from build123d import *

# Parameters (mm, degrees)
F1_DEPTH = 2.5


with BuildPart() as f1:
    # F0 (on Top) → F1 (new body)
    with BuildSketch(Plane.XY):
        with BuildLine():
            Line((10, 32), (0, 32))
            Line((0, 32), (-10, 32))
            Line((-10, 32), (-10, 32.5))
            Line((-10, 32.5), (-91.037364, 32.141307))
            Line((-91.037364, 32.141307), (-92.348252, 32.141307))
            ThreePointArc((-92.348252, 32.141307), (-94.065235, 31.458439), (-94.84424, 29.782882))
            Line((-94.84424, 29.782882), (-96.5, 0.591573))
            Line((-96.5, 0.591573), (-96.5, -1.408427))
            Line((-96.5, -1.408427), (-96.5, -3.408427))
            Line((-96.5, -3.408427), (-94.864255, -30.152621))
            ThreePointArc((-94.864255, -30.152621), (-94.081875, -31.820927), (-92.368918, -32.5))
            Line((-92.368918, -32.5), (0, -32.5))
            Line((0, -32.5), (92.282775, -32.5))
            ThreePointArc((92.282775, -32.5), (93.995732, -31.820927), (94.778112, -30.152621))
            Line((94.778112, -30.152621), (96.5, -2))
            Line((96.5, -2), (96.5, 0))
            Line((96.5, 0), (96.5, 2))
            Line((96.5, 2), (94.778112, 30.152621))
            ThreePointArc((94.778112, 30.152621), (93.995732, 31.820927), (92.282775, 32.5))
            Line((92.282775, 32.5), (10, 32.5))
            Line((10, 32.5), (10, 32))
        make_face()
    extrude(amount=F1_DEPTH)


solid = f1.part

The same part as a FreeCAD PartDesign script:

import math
import FreeCAD as App
import Part
import Sketcher
Q = App.Units.Quantity

doc = App.newDocument("Part")
body = doc.addObject("PartDesign::Body", "Body")

sketch1 = body.newObject("Sketcher::SketchObject", "Sketch")
sketch1.AttachmentSupport = (doc.getObject("XY_Plane"), [""])
sketch1.MapMode = "FlatFace"
sketch1.addGeometry(Part.LineSegment(App.Vector(10, 32, 0), App.Vector(-10, 32, 0)), False)
sketch1.addGeometry(Part.LineSegment(App.Vector(-10, 32, 0), App.Vector(-10, 32.5, 0)), False)
sketch1.addGeometry(Part.LineSegment(App.Vector(-10, 32.5, 0), App.Vector(-91.037364, 32.141307, 0)), False)
sketch1.addGeometry(Part.LineSegment(App.Vector(-91.037364, 32.141307, 0), App.Vector(-92.348252, 32.141307, 0)), False)
sketch1.addGeometry(Part.ArcOfCircle(Part.Circle(App.Vector(-92.348252, 29.641307, 0), App.Vector(0, 0, 1), 2.5), math.radians(90.000006), math.radians(176.753599)), False)
sketch1.addGeometry(Part.LineSegment(App.Vector(-94.84424, 29.782882, 0), App.Vector(-96.5, 0.591573, 0)), False)
sketch1.addGeometry(Part.LineSegment(App.Vector(-96.5, 0.591573, 0), App.Vector(-96.5, -3.408427, 0)), False)
sketch1.addGeometry(Part.LineSegment(App.Vector(-96.5, -3.408427, 0), App.Vector(-94.864255, -30.152621, 0)), False)
sketch1.addGeometry(Part.ArcOfCircle(Part.Circle(App.Vector(-92.368916, -29.999998, 0), App.Vector(0, 0, 1), 2.500002), math.radians(-176.499972), math.radians(-90.000036)), False)
sketch1.addGeometry(Part.LineSegment(App.Vector(-92.368918, -32.5, 0), App.Vector(92.282775, -32.5, 0)), False)
sketch1.addGeometry(Part.ArcOfCircle(Part.Circle(App.Vector(92.282773, -29.999998, 0), App.Vector(0, 0, 1), 2.500002), math.radians(-89.999964), math.radians(-3.500028)), False)
sketch1.addGeometry(Part.LineSegment(App.Vector(94.778112, -30.152621, 0), App.Vector(96.5, -2, 0)), False)
sketch1.addGeometry(Part.LineSegment(App.Vector(96.5, -2, 0), App.Vector(96.5, 2, 0)), False)
sketch1.addGeometry(Part.LineSegment(App.Vector(96.5, 2, 0), App.Vector(94.778112, 30.152621, 0)), False)
sketch1.addGeometry(Part.ArcOfCircle(Part.Circle(App.Vector(92.282773, 29.999998, 0), App.Vector(0, 0, 1), 2.500002), math.radians(3.500028), math.radians(89.999964)), False)
sketch1.addGeometry(Part.LineSegment(App.Vector(92.282775, 32.5, 0), App.Vector(10, 32.5, 0)), False)
sketch1.addGeometry(Part.LineSegment(App.Vector(10, 32.5, 0), App.Vector(10, 32, 0)), False)
sketch1.addConstraint(Sketcher.Constraint("Coincident", 0, 2, 1, 1))
sketch1.addConstraint(Sketcher.Constraint("Coincident", 1, 2, 2, 1))
sketch1.addConstraint(Sketcher.Constraint("Coincident", 2, 2, 3, 1))
sketch1.addConstraint(Sketcher.Constraint("Tangent", 3, 2, 4, 1))
sketch1.addConstraint(Sketcher.Constraint("Tangent", 4, 2, 5, 1))
sketch1.addConstraint(Sketcher.Constraint("Coincident", 5, 2, 6, 1))
sketch1.addConstraint(Sketcher.Constraint("Coincident", 6, 2, 7, 1))
sketch1.addConstraint(Sketcher.Constraint("Tangent", 7, 2, 8, 1))
sketch1.addConstraint(Sketcher.Constraint("Tangent", 8, 2, 9, 1))
sketch1.addConstraint(Sketcher.Constraint("Tangent", 9, 2, 10, 1))
sketch1.addConstraint(Sketcher.Constraint("Tangent", 10, 2, 11, 1))
sketch1.addConstraint(Sketcher.Constraint("Coincident", 11, 2, 12, 1))
sketch1.addConstraint(Sketcher.Constraint("Coincident", 12, 2, 13, 1))
sketch1.addConstraint(Sketcher.Constraint("Tangent", 13, 2, 14, 1))
sketch1.addConstraint(Sketcher.Constraint("Tangent", 14, 2, 15, 1))
sketch1.addConstraint(Sketcher.Constraint("Coincident", 15, 2, 16, 1))
sketch1.addConstraint(Sketcher.Constraint("Coincident", 16, 2, 0, 1))
sketch1.addConstraint(Sketcher.Constraint("Horizontal", 0))
sketch1.addConstraint(Sketcher.Constraint("Vertical", 1))
sketch1.addConstraint(Sketcher.Constraint("Horizontal", 3))
sketch1.addConstraint(Sketcher.Constraint("Vertical", 6))
sketch1.addConstraint(Sketcher.Constraint("Horizontal", 9))
sketch1.addConstraint(Sketcher.Constraint("Vertical", 12))
sketch1.addConstraint(Sketcher.Constraint("Horizontal", 15))
sketch1.addConstraint(Sketcher.Constraint("Vertical", 16))
sketch1.addConstraint(Sketcher.Constraint("Equal", 4, 8))
sketch1.addConstraint(Sketcher.Constraint("Equal", 8, 10))
sketch1.addConstraint(Sketcher.Constraint("Equal", 10, 14))
sketch1.addConstraint(Sketcher.Constraint("Symmetric", 1, 2, 15, 2, -2))
sketch1.addConstraint(Sketcher.Constraint("Symmetric", 10, 3, 14, 3, -1))
sketch1.addConstraint(Sketcher.Constraint("Parallel", 7, 13))
sketch1.addConstraint(Sketcher.Constraint("Equal", 6, 12))
sketch1.addConstraint(Sketcher.Constraint("Equal", 11, 13))
sketch1.addConstraint(Sketcher.Constraint("Radius", 4, 2.5))
sketch1.addConstraint(Sketcher.Constraint("DistanceX", 0, 2, 0, 1, 20.0))
sketch1.addConstraint(Sketcher.Constraint("DistanceY", 6, 2, 6, 1, 4.0))
sketch1.addConstraint(Sketcher.Constraint("DistanceY", 1, 1, 1, 2, 0.5))
sketch1.addConstraint(Sketcher.Constraint("DistanceY", 8, 3, -1, 1, 29.999998))
sketch1.addConstraint(Sketcher.Constraint("Angle", 7, Q("-86.5 deg")))
sketch1.addConstraint(Sketcher.Constraint("DistanceX", 5, 2, -1, 1, 96.5))
sketch1.addConstraint(Sketcher.Constraint("DistanceX", -1, 1, 11, 2, 96.5))
sketch1.addConstraint(Sketcher.Constraint("DistanceX", 3, 2, 3, 1, 1.310888))
sketch1.addConstraint(Sketcher.Constraint("Distance", 5, 29.238229))
sketch1.addConstraint(Sketcher.Constraint("Distance", 7, 26.794171))
sketch1.addConstraint(Sketcher.Constraint("DistanceX", 4, 3, -1, 1, 92.348252))
pad1 = body.newObject("PartDesign::Pad", "Pad")
pad1.Profile = sketch1
pad1.Length = 2.5

doc.recompute()
